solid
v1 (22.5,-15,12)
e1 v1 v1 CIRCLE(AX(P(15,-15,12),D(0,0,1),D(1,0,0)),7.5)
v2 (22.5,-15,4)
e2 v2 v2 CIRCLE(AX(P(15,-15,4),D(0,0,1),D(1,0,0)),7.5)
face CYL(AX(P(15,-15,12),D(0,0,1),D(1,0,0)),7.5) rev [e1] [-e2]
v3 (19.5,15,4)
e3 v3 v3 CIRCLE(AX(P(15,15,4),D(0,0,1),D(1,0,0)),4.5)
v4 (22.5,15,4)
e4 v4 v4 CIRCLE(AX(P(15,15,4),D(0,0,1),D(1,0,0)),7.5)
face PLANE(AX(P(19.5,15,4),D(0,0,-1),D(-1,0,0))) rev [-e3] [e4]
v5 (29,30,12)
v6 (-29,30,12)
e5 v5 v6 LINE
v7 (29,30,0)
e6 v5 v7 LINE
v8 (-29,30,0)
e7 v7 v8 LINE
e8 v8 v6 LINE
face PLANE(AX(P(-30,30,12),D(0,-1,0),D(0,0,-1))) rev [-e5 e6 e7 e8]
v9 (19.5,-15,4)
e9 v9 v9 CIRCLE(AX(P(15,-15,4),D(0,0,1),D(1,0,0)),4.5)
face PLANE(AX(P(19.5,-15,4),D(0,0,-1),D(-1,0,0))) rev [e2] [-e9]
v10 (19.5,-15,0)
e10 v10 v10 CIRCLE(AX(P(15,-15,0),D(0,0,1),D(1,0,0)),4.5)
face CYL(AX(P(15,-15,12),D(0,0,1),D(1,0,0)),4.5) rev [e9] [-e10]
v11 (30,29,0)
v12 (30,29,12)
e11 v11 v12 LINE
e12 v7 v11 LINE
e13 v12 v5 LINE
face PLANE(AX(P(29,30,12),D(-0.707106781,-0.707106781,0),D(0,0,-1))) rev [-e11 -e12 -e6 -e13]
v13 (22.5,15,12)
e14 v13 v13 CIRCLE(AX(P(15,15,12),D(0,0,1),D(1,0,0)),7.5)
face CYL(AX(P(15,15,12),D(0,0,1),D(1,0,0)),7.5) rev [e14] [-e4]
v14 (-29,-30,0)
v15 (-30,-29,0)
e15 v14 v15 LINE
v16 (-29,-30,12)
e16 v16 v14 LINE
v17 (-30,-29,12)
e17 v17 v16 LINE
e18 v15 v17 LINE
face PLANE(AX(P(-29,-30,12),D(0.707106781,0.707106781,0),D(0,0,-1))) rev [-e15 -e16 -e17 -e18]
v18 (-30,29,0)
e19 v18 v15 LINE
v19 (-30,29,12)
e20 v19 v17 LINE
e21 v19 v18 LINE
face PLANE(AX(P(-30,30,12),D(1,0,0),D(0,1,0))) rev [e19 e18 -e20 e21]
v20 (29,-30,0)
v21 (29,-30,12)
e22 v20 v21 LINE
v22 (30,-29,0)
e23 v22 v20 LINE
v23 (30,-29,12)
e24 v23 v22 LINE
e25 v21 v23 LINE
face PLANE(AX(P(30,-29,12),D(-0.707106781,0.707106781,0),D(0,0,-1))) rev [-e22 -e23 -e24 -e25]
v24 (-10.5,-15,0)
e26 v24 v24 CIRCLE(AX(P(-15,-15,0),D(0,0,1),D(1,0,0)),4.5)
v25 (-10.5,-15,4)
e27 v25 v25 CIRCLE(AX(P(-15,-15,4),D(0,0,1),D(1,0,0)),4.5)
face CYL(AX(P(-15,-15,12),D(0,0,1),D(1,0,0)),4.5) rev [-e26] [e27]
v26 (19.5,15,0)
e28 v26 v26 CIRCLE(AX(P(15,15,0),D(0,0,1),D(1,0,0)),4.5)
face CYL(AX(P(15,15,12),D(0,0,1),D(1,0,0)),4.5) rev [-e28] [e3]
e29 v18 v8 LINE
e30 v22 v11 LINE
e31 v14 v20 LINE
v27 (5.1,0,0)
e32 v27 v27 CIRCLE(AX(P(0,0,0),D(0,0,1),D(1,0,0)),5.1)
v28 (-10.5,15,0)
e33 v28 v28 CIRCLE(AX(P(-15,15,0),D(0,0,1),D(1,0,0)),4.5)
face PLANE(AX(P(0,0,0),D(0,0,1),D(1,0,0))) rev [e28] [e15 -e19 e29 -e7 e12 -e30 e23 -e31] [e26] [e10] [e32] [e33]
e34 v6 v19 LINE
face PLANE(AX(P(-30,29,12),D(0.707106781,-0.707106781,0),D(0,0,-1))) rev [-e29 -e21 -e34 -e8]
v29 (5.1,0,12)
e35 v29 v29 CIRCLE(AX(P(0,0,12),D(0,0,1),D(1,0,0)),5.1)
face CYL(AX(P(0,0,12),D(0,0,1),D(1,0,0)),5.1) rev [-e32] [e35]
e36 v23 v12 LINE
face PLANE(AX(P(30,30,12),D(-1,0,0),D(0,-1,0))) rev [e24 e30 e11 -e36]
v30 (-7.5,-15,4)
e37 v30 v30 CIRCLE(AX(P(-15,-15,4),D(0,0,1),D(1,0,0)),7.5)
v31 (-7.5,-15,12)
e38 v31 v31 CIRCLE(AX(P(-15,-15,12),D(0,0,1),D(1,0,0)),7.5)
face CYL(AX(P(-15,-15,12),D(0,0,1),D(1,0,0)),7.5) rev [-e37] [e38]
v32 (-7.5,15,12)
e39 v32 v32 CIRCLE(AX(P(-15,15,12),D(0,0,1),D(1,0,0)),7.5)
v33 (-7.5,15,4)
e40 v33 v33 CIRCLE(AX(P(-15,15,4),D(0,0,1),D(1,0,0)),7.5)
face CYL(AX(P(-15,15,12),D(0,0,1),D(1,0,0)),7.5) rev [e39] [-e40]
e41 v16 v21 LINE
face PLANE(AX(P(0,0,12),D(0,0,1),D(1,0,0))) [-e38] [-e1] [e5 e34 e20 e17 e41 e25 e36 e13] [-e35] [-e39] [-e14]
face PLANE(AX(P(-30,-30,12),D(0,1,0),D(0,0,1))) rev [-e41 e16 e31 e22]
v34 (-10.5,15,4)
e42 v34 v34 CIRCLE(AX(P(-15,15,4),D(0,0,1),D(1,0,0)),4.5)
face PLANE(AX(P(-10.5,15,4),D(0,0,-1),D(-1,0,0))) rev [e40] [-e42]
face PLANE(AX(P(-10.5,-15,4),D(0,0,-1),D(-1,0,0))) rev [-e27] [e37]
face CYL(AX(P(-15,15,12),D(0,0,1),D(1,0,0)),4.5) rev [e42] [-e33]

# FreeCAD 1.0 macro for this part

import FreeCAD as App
import Part
import Sketcher

V = App.Vector
Q = App.Units.Quantity


def edges_at(feature, points):
    """Names of the edges that pass closest to the given points."""
    edges = feature.Shape.Edges
    near = lambda p: min(range(len(edges)), key=lambda i: edges[i].distToShape(Part.Vertex(*p))[0])
    return sorted({f"Edge{near(p) + 1}" for p in points})

doc = App.newDocument("Part")
body = doc.addObject("PartDesign::Body", "Body")

sketch1 = body.newObject("Sketcher::SketchObject", "Sketch")
sketch1.AttachmentSupport = (doc.getObject("XY_Plane"), [""])
sketch1.MapMode = "FlatFace"
sketch1.addGeometry(Part.LineSegment(V(-30, 30, 0), V(-30, -30, 0)), False)
sketch1.addGeometry(Part.LineSegment(V(-30, -30, 0), V(30, -30, 0)), False)
sketch1.addGeometry(Part.LineSegment(V(30, -30, 0), V(30, 30, 0)), False)
sketch1.addGeometry(Part.LineSegment(V(30, 30, 0), V(-30, 30, 0)), False)
sketch1.addConstraint(Sketcher.Constraint("Coincident", 0, 2, 1, 1))
sketch1.addConstraint(Sketcher.Constraint("Coincident", 1, 2, 2, 1))
sketch1.addConstraint(Sketcher.Constraint("Coincident", 2, 2, 3, 1))
sketch1.addConstraint(Sketcher.Constraint("Coincident", 3, 2, 0, 1))
sketch1.addConstraint(Sketcher.Constraint("Vertical", 0))
sketch1.addConstraint(Sketcher.Constraint("Horizontal", 1))
sketch1.addConstraint(Sketcher.Constraint("Vertical", 2))
sketch1.addConstraint(Sketcher.Constraint("Horizontal", 3))
sketch1.addConstraint(Sketcher.Constraint("Symmetric", 0, 2, 2, 2, -1, 1))
sketch1.addConstraint(Sketcher.Constraint("Equal", 3, 0))
sketch1.addConstraint(Sketcher.Constraint("DistanceX", 1, 1, 1, 2, Q("60 mm")))
pad1 = body.newObject("PartDesign::Pad", "Pad")
pad1.Profile = sketch1
pad1.Length = 12

sketch2 = body.newObject("Sketcher::SketchObject", "Sketch001")
sketch2.AttachmentSupport = (doc.getObject("XY_Plane"), [""])
sketch2.MapMode = "FlatFace"
sketch2.AttachmentOffset = App.Placement(V(0, 0, 12), App.Rotation())
sketch2.addGeometry(Part.Circle(V(0, 0, 0), V(0, 0, 1), 5), False)
sketch2.addConstraint(Sketcher.Constraint("Coincident", 0, 3, -1, 1))
sketch2.addConstraint(Sketcher.Constraint("Diameter", 0, Q("10.2 mm")))
doc.recompute()
hole = body.newObject("PartDesign::Hole", "Hole")
hole.Profile = sketch2
hole.ThreadType = "None"
hole.Diameter = 10.2
hole.DepthType = "ThroughAll"

sketch3 = body.newObject("Sketcher::SketchObject", "Sketch002")
sketch3.AttachmentSupport = (doc.getObject("XY_Plane"), [""])
sketch3.MapMode = "FlatFace"
sketch3.AttachmentOffset = App.Placement(V(0, 0, 12), App.Rotation())
sketch3.addGeometry(Part.Circle(V(-15, 15, 0), V(0, 0, 1), 4.5), False)
sketch3.addGeometry(Part.Circle(V(15, 15, 0), V(0, 0, 1), 4.5), False)
sketch3.addGeometry(Part.Circle(V(15, -15, 0), V(0, 0, 1), 4.5), False)
sketch3.addGeometry(Part.Circle(V(-15, -15, 0), V(0, 0, 1), 4.5), False)
sketch3.addConstraint(Sketcher.Constraint("Equal", 0, 1))
sketch3.addConstraint(Sketcher.Constraint("Equal", 1, 2))
sketch3.addConstraint(Sketcher.Constraint("Equal", 2, 3))
sketch3.addConstraint(Sketcher.Constraint("Symmetric", 0, 3, 2, 3, -1, 1))
sketch3.addConstraint(Sketcher.Constraint("Symmetric", 1, 3, 3, 3, -1, 1))
sketch3.addConstraint(Sketcher.Constraint("Symmetric", 0, 3, 1, 3, -2))
sketch3.addConstraint(Sketcher.Constraint("Diameter", 0, Q("9 mm")))
sketch3.addConstraint(Sketcher.Constraint("DistanceX", 0, 3, -1, 1, Q("15 mm")))
sketch3.addConstraint(Sketcher.Constraint("DistanceY", -1, 1, 0, 3, Q("15 mm")))
doc.recompute()
hole2 = body.newObject("PartDesign::Hole", "Hole001")
hole2.Profile = sketch3
hole2.ThreadType = "None"
hole2.Diameter = 9
hole2.DepthType = "ThroughAll"
hole2.HoleCutType = "Counterbore"
hole2.HoleCutDiameter = 15
hole2.HoleCutDepth = 8
doc.recompute()

chamfer = body.newObject("PartDesign::Chamfer", "Chamfer")
chamfer.Base = (hole2, edges_at(hole2, [
    (30, -30, 6),
    (-30, -30, 6),
    (-30, 30, 6),
    (30, 30, 6),
]))
chamfer.Size = 1

doc.recompute()
